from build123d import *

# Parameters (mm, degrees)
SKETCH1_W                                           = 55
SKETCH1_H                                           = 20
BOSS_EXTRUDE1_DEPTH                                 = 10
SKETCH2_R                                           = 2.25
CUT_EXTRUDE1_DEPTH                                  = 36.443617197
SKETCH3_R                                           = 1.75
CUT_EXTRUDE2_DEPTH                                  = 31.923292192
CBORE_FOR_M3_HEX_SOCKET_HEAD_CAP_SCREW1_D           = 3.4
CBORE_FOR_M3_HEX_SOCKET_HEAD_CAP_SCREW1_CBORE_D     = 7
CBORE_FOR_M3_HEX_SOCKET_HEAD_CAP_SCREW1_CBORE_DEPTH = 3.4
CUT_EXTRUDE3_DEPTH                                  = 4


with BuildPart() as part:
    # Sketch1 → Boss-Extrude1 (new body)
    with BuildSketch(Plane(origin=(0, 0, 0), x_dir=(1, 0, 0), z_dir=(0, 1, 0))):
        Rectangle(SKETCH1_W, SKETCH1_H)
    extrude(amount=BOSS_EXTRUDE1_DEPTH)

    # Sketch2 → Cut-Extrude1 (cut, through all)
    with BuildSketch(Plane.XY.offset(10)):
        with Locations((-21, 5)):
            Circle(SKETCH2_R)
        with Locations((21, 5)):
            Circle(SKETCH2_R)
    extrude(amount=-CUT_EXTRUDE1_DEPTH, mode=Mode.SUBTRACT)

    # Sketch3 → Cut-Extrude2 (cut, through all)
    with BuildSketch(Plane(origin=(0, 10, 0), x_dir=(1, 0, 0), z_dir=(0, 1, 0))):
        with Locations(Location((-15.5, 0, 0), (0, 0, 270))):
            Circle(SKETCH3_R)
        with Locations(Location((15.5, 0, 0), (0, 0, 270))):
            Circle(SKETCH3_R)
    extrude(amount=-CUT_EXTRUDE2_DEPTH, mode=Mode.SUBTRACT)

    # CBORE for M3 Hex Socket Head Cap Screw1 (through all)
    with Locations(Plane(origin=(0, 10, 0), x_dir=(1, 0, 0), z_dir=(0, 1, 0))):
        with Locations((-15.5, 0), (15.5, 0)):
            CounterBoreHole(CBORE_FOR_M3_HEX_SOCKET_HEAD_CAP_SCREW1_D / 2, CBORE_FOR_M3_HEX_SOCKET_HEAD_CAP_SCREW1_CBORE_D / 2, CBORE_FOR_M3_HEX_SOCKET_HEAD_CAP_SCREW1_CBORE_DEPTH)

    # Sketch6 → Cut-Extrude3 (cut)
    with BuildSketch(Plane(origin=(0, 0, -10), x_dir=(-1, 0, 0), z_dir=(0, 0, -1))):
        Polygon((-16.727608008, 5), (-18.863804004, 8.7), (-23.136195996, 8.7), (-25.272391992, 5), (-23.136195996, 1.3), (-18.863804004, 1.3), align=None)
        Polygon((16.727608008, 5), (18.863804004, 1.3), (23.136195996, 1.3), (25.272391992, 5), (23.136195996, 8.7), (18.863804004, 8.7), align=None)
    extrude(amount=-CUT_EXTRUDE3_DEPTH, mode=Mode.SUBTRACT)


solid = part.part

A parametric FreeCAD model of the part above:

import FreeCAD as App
import Part
import Sketcher
Q = App.Units.Quantity

doc = App.newDocument("Part")
body = doc.addObject("PartDesign::Body", "Body")

# Sketch on XZ plane
sketch1 = body.newObject("Sketcher::SketchObject", "Sketch")
sketch1.AttachmentSupport = (doc.getObject("XZ_Plane"), [""])
sketch1.MapMode = "FlatFace"
sketch1.addGeometry(Part.LineSegment(App.Vector(-27.5, -10, 0), App.Vector(-27.5, 10, 0)), False)
sketch1.addGeometry(Part.LineSegment(App.Vector(-27.5, 10, 0), App.Vector(27.5, 10, 0)), False)
sketch1.addGeometry(Part.LineSegment(App.Vector(27.5, 10, 0), App.Vector(27.5, -10, 0)), False)
sketch1.addGeometry(Part.LineSegment(App.Vector(27.5, -10, 0), App.Vector(-27.5, -10, 0)), False)
sketch1.addConstraint(Sketcher.Constraint("Coincident", 0, 2, 1, 1))
sketch1.addConstraint(Sketcher.Constraint("Coincident", 1, 2, 2, 1))
sketch1.addConstraint(Sketcher.Constraint("Coincident", 2, 2, 3, 1))
sketch1.addConstraint(Sketcher.Constraint("Coincident", 3, 2, 0, 1))
sketch1.addConstraint(Sketcher.Constraint("Vertical", 0))
sketch1.addConstraint(Sketcher.Constraint("Horizontal", 1))
sketch1.addConstraint(Sketcher.Constraint("Vertical", 2))
sketch1.addConstraint(Sketcher.Constraint("Horizontal", 3))
sketch1.addConstraint(Sketcher.Constraint("Symmetric", 0, 2, 2, 2, -1, 1))
sketch1.addConstraint(Sketcher.Constraint("DistanceX", 1, 1, 1, 2, Q("55 mm")))
sketch1.addConstraint(Sketcher.Constraint("DistanceY", 0, 1, 0, 2, Q("20 mm")))
pad1 = body.newObject("PartDesign::Pad", "Pad")
pad1.Profile = sketch1
pad1.Length = 10
pad1.Reversed = True

# Sketch on XY plane
sketch2 = body.newObject("Sketcher::SketchObject", "Sketch001")
sketch2.AttachmentSupport = (doc.getObject("XY_Plane"), [""])
sketch2.MapMode = "FlatFace"
sketch2.AttachmentOffset = App.Placement(App.Vector(0, 0, 10), App.Rotation())
sketch2.addGeometry(Part.Circle(App.Vector(-21, 5, 0), App.Vector(0, 0, 1), 2.25), False)
sketch2.addGeometry(Part.Circle(App.Vector(21, 5, 0), App.Vector(0, 0, 1), 2.25), False)
sketch2.addConstraint(Sketcher.Constraint("Equal", 0, 1))
sketch2.addConstraint(Sketcher.Constraint("Symmetric", 0, 3, 1, 3, -2))
sketch2.addConstraint(Sketcher.Constraint("Diameter", 0, Q("4.5 mm")))
sketch2.addConstraint(Sketcher.Constraint("DistanceX", 0, 3, -1, 1, Q("21 mm")))
sketch2.addConstraint(Sketcher.Constraint("DistanceY", -1, 1, 0, 3, Q("5 mm")))
pocket1 = body.newObject("PartDesign::Pocket", "Pocket")
pocket1.Profile = sketch2
pocket1.Type = "ThroughAll"

# Sketch on XZ plane
sketch3 = body.newObject("Sketcher::SketchObject", "Sketch002")
sketch3.AttachmentSupport = (doc.getObject("XZ_Plane"), [""])
sketch3.MapMode = "FlatFace"
sketch3.AttachmentOffset = App.Placement(App.Vector(0, 0, -10), App.Rotation())
sketch3.addGeometry(Part.Circle(App.Vector(-15.5, 0, 0), App.Vector(0, 0, 1), 1.75), False)
sketch3.addGeometry(Part.Circle(App.Vector(15.5, 0, 0), App.Vector(0, 0, 1), 1.75), False)
sketch3.addConstraint(Sketcher.Constraint("Equal", 0, 1))
sketch3.addConstraint(Sketcher.Constraint("Symmetric", 0, 3, 1, 3, -1, 1))
sketch3.addConstraint(Sketcher.Constraint("PointOnObject", 0, 3, -1))
sketch3.addConstraint(Sketcher.Constraint("Diameter", 0, Q("3.5 mm")))
sketch3.addConstraint(Sketcher.Constraint("DistanceX", 0, 3, 1, 3, Q("31 mm")))
pocket2 = body.newObject("PartDesign::Pocket", "Pocket001")
pocket2.Profile = sketch3
pocket2.Type = "ThroughAll"
pocket2.Reversed = True

# Sketch on XZ plane
sketch4 = body.newObject("Sketcher::SketchObject", "Sketch003")
sketch4.AttachmentSupport = (doc.getObject("XZ_Plane"), [""])
sketch4.MapMode = "FlatFace"
sketch4.AttachmentOffset = App.Placement(App.Vector(0, 0, -10), App.Rotation())
sketch4.addGeometry(Part.Circle(App.Vector(-15.5, 0, 0), App.Vector(0, 0, 1), 1.7), False)
sketch4.addGeometry(Part.Circle(App.Vector(15.5, 0, 0), App.Vector(0, 0, 1), 1.7), False)
sketch4.addConstraint(Sketcher.Constraint("Equal", 0, 1))
sketch4.addConstraint(Sketcher.Constraint("Symmetric", 0, 3, 1, 3, -1, 1))
sketch4.addConstraint(Sketcher.Constraint("PointOnObject", 0, 3, -1))
sketch4.addConstraint(Sketcher.Constraint("Diameter", 0, Q("3.4 mm")))
sketch4.addConstraint(Sketcher.Constraint("DistanceX", 0, 3, 1, 3, Q("31 mm")))
doc.recompute()
hole = body.newObject("PartDesign::Hole", "Hole")
hole.Profile = sketch4
hole.ThreadType = "None"
hole.Diameter = 3.4
hole.DepthType = "ThroughAll"
hole.HoleCutType = "Counterbore"
hole.HoleCutDiameter = 7
hole.HoleCutDepth = 3.4
hole.Reversed = True

# Sketch on XY plane
sketch5 = body.newObject("Sketcher::SketchObject", "Sketch004")
sketch5.AttachmentSupport = (doc.getObject("XY_Plane"), [""])
sketch5.MapMode = "FlatFace"
sketch5.AttachmentOffset = App.Placement(App.Vector(0, 0, -10), App.Rotation())
sketch5.addGeometry(Part.LineSegment(App.Vector(16.727608, 5, 0), App.Vector(18.863804, 8.7, 0)), False)
sketch5.addGeometry(Part.LineSegment(App.Vector(18.863804, 8.7, 0), App.Vector(23.136196, 8.7, 0)), False)
sketch5.addGeometry(Part.LineSegment(App.Vector(23.136196, 8.7, 0), App.Vector(25.272392, 5, 0)), False)
sketch5.addGeometry(Part.LineSegment(App.Vector(25.272392, 5, 0), App.Vector(23.136196, 1.3, 0)), False)
sketch5.addGeometry(Part.LineSegment(App.Vector(23.136196, 1.3, 0), App.Vector(18.863804, 1.3, 0)), False)
sketch5.addGeometry(Part.LineSegment(App.Vector(18.863804, 1.3, 0), App.Vector(16.727608, 5, 0)), False)
sketch5.addGeometry(Part.LineSegment(App.Vector(-16.727608, 5, 0), App.Vector(-18.863804, 1.3, 0)), False)
sketch5.addGeometry(Part.LineSegment(App.Vector(-18.863804, 1.3, 0), App.Vector(-23.136196, 1.3, 0)), False)
sketch5.addGeometry(Part.LineSegment(App.Vector(-23.136196, 1.3, 0), App.Vector(-25.272392, 5, 0)), False)
sketch5.addGeometry(Part.LineSegment(App.Vector(-25.272392, 5, 0), App.Vector(-23.136196, 8.7, 0)), False)
sketch5.addGeometry(Part.LineSegment(App.Vector(-23.136196, 8.7, 0), App.Vector(-18.863804, 8.7, 0)), False)
sketch5.addGeometry(Part.LineSegment(App.Vector(-18.863804, 8.7, 0), App.Vector(-16.727608, 5, 0)), False)
sketch5.addConstraint(Sketcher.Constraint("Coincident", 0, 2, 1, 1))
sketch5.addConstraint(Sketcher.Constraint("Coincident", 1, 2, 2, 1))
sketch5.addConstraint(Sketcher.Constraint("Coincident", 2, 2, 3, 1))
sketch5.addConstraint(Sketcher.Constraint("Coincident", 3, 2, 4, 1))
sketch5.addConstraint(Sketcher.Constraint("Coincident", 4, 2, 5, 1))
sketch5.addConstraint(Sketcher.Constraint("Coincident", 5, 2, 0, 1))
sketch5.addConstraint(Sketcher.Constraint("Coincident", 6, 2, 7, 1))
sketch5.addConstraint(Sketcher.Constraint("Coincident", 7, 2, 8, 1))
sketch5.addConstraint(Sketcher.Constraint("Coincident", 8, 2, 9, 1))
sketch5.addConstraint(Sketcher.Constraint("Coincident", 9, 2, 10, 1))
sketch5.addConstraint(Sketcher.Constraint("Coincident", 10, 2, 11, 1))
sketch5.addConstraint(Sketcher.Constraint("Coincident", 11, 2, 6, 1))
sketch5.addConstraint(Sketcher.Constraint("Horizontal", 1))
sketch5.addConstraint(Sketcher.Constraint("Horizontal", 4))
sketch5.addConstraint(Sketcher.Constraint("Horizontal", 7))
sketch5.addConstraint(Sketcher.Constraint("Horizontal", 10))
sketch5.addConstraint(Sketcher.Constraint("Symmetric", 4, 2, 6, 2, -2))
sketch5.addConstraint(Sketcher.Constraint("Symmetric", 2, 2, 8, 2, -2))
sketch5.addConstraint(Sketcher.Constraint("Symmetric", 1, 2, 9, 2, -2))
sketch5.addConstraint(Sketcher.Constraint("Symmetric", 5, 2, 11, 2, -2))
sketch5.addConstraint(Sketcher.Constraint("Parallel", 0, 3))
sketch5.addConstraint(Sketcher.Constraint("Parallel", 2, 5))
sketch5.addConstraint(Sketcher.Constraint("Parallel", 3, 6))
sketch5.addConstraint(Sketcher.Constraint("Parallel", 5, 8))
sketch5.addConstraint(Sketcher.Constraint("Parallel", 8, 11))
sketch5.addConstraint(Sketcher.Constraint("Horizontal", 2, 2, 5, 2))
sketch5.addConstraint(Sketcher.Constraint("Vertical", 1, 2, 3, 2))
sketch5.addConstraint(Sketcher.Constraint("Angle", 0, Q("60 deg")))
sketch5.addConstraint(Sketcher.Constraint("DistanceY", -1, 1, 2, 2, Q("5 mm")))
sketch5.addConstraint(Sketcher.Constraint("DistanceX", 6, 2, 3, 2, Q("42 mm")))
sketch5.addConstraint(Sketcher.Constraint("DistanceY", -1, 1, 0, 2, Q("8.7 mm")))
sketch5.addConstraint(Sketcher.Constraint("DistanceX", 1, 1, 1, 2, Q("4.272392 mm")))
pocket3 = body.newObject("PartDesign::Pocket", "Pocket002")
pocket3.Profile = sketch5
pocket3.Length = 4
pocket3.Reversed = True

doc.recompute()
